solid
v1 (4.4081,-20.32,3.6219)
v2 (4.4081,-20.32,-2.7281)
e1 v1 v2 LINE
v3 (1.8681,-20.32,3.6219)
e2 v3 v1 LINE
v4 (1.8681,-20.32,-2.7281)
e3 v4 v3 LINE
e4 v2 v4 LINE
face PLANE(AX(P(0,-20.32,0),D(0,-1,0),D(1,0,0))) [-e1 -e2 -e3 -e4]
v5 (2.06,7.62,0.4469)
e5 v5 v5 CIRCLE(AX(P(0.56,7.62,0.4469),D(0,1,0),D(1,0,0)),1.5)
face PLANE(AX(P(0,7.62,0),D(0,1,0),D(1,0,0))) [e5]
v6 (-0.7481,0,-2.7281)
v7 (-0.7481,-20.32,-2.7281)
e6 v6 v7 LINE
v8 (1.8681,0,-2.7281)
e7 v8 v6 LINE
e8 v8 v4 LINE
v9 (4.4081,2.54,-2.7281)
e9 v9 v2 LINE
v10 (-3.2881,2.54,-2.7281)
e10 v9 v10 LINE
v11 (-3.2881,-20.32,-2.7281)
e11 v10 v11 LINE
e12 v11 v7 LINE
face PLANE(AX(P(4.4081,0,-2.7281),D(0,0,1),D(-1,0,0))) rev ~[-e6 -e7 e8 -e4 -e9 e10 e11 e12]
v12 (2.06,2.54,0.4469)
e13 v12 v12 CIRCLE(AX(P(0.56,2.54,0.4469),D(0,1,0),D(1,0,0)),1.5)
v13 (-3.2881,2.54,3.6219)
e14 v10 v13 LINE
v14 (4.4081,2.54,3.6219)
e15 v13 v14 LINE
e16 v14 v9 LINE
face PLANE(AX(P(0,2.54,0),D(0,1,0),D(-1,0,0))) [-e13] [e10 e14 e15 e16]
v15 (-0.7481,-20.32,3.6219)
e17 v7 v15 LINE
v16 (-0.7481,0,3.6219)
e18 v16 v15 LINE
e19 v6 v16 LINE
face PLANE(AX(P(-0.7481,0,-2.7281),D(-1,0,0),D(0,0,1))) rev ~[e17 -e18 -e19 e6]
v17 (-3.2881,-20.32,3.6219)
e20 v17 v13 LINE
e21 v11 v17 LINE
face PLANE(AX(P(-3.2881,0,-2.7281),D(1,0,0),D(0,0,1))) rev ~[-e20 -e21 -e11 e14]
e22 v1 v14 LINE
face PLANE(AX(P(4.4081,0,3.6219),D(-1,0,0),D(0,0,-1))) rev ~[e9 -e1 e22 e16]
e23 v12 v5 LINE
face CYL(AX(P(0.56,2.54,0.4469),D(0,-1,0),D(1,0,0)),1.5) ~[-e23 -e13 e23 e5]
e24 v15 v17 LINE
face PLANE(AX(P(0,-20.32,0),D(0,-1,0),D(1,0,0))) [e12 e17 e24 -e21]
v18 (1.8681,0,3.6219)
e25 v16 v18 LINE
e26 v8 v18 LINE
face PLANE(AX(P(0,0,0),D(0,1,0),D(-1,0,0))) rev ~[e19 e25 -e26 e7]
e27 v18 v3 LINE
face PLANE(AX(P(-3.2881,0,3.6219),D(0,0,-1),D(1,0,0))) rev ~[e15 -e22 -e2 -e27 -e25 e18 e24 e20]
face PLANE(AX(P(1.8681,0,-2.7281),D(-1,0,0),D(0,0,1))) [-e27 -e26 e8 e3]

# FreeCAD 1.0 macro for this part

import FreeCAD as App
import Part
import Sketcher

V = App.Vector
Q = App.Units.Quantity


def add_polygon(sketch, points):
    """Adds a closed chain of lines whose ends are joined by coincident constraints."""
    first, n = sketch.GeometryCount, len(points)
    for a, b in zip(points, points[1:] + points[:1]):
        sketch.addGeometry(Part.LineSegment(App.Vector(*a, 0), App.Vector(*b, 0)), False)
    for i in range(n):
        sketch.addConstraint(Sketcher.Constraint("Coincident", first + i, 2, first + (i + 1) % n, 1))

doc = App.newDocument("Part")
body = doc.addObject("PartDesign::Body", "Body")

# Sketch on XZ plane
sketch1 = body.newObject("Sketcher::SketchObject", "Sketch")
sketch1.AttachmentSupport = (doc.getObject("XZ_Plane"), [""])
sketch1.MapMode = "FlatFace"
add_polygon(sketch1, [(-3, -3), (-3, 4), (4, 4), (4, -3)])  # lines 0-3
sketch1.addConstraint([
    Sketcher.Constraint("Vertical", 0),
    Sketcher.Constraint("Horizontal", 1),
    Sketcher.Constraint("Vertical", 2),
    Sketcher.Constraint("Horizontal", 3),
    Sketcher.Constraint("DistanceY", 0, 1, 0, 2, Q("0.25 in")),
    Sketcher.Constraint("DistanceX", 1, 1, 1, 2, Q("0.303 in")),
    Sketcher.Constraint("DistanceY", -1, 1, 0, 2, Q("0.1426 in")),
    Sketcher.Constraint("DistanceX", 0, 2, -1, 1, 3.288),
])
pad1 = body.newObject("PartDesign::Pad", "Pad")
pad1.Profile = sketch1
pad1.Length = Q("0.1 in")
pad1.Reversed = True

# Sketch on XZ plane
sketch2 = body.newObject("Sketcher::SketchObject", "Sketch001")
sketch2.AttachmentSupport = (doc.getObject("XZ_Plane"), [""])
sketch2.MapMode = "FlatFace"
sketch2.AttachmentOffset = App.Placement(V(0, 0, -0.1 * 25.4), App.Rotation())
sketch2.addGeometry(Part.Circle(V(0.6, 0.4, 0), V(0, 0, 1), 1.5), False)
sketch2.addConstraint([
    Sketcher.Constraint("Diameter", 0, Q("0.1181 in")),
    Sketcher.Constraint("DistanceY", -1, 1, 0, 3, Q("0.0176 in")),
    Sketcher.Constraint("DistanceX", -1, 1, 0, 3, 0.56),
])
pad2 = body.newObject("PartDesign::Pad", "Pad001")
pad2.Profile = sketch2
pad2.Length = Q("0.2 in")
pad2.Reversed = True

# Sketch on XZ plane
sketch3 = body.newObject("Sketcher::SketchObject", "Sketch002")
sketch3.AttachmentSupport = (doc.getObject("XZ_Plane"), [""])
sketch3.MapMode = "FlatFace"
add_polygon(sketch3, [(-3.3, 3.6), (-3.3, -2.7), (-0.7, -2.7), (-0.7, 3.6)])  # lines 0-3
add_polygon(sketch3, [(1.9, -2.7), (4.4, -2.7), (4.4, 3.6), (1.9, 3.6)])  # lines 4-7
sketch3.addConstraint([
    Sketcher.Constraint("Vertical", 0),
    Sketcher.Constraint("Horizontal", 1),
    Sketcher.Constraint("Vertical", 2),
    Sketcher.Constraint("Horizontal", 3),
    Sketcher.Constraint("Horizontal", 4),
    Sketcher.Constraint("Vertical", 5),
    Sketcher.Constraint("Horizontal", 6),
    Sketcher.Constraint("Vertical", 7),
    Sketcher.Constraint("Horizontal", 1, 2, 4, 2),
    Sketcher.Constraint("Horizontal", 3, 2, 5, 2),
    Sketcher.Constraint("Equal", 3, 4),
    Sketcher.Constraint("DistanceX", 1, 1, 1, 2, Q("0.1 in")),
    Sketcher.Constraint("DistanceX", 2, 2, 6, 2, Q("0.103 in")),
    Sketcher.Constraint("DistanceY", 0, 2, 0, 1, Q("0.25 in")),
    Sketcher.Constraint("DistanceY", 0, 2, -1, 1, Q("0.1074 in")),
    Sketcher.Constraint("DistanceX", 0, 2, -1, 1, 3.288),
])
pad3 = body.newObject("PartDesign::Pad", "Pad002")
pad3.Profile = sketch3
pad3.Length = Q("0.8 in")

doc.recompute()
